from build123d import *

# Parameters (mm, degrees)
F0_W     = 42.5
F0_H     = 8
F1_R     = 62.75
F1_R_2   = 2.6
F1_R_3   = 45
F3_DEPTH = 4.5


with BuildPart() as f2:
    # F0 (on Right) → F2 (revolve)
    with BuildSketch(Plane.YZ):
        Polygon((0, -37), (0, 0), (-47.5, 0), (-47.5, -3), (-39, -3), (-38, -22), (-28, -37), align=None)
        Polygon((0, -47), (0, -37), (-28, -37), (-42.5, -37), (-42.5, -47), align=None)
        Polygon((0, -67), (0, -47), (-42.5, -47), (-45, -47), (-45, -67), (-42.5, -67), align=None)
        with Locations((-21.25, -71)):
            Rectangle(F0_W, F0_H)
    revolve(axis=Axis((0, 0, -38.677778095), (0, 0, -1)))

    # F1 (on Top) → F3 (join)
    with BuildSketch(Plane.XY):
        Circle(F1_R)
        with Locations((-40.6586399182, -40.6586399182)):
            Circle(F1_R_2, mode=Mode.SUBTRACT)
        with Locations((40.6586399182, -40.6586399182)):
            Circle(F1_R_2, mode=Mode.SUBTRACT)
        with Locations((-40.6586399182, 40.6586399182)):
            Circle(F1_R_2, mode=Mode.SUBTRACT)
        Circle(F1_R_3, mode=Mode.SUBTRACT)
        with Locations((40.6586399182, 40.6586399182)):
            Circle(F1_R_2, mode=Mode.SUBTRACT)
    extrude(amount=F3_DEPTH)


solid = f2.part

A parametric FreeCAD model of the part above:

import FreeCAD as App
import Part
import Sketcher

V = App.Vector


def add_polygon(sketch, points):
    """Adds a closed chain of lines whose ends are joined by coincident constraints."""
    first, n = sketch.GeometryCount, len(points)
    for a, b in zip(points, points[1:] + points[:1]):
        sketch.addGeometry(Part.LineSegment(App.Vector(*a, 0), App.Vector(*b, 0)), False)
    for i in range(n):
        sketch.addConstraint(Sketcher.Constraint("Coincident", first + i, 2, first + (i + 1) % n, 1))

doc = App.newDocument("Part")
body = doc.addObject("PartDesign::Body", "Body")

# Sketch on YZ plane
sketch1 = body.newObject("Sketcher::SketchObject", "Sketch")
sketch1.AttachmentSupport = (doc.getObject("YZ_Plane"), [""])
sketch1.MapMode = "FlatFace"
add_polygon(sketch1, [(0, 0), (-47.5, 0), (-47.5, -3), (-39, -3), (-38, -22), (-28, -37), (-42.5, -37), (-42.5, -47), (-45, -47), (-45, -67), (-42.5, -67), (-42.5, -75), (0, -75)])  # lines 0-12
sketch1.addConstraint([
    Sketcher.Constraint("Horizontal", 0),
    Sketcher.Constraint("Vertical", 1),
    Sketcher.Constraint("Horizontal", 2),
    Sketcher.Constraint("Horizontal", 5),
    Sketcher.Constraint("Vertical", 6),
    Sketcher.Constraint("Horizontal", 7),
    Sketcher.Constraint("Vertical", 8),
    Sketcher.Constraint("Horizontal", 9),
    Sketcher.Constraint("Vertical", 10),
    Sketcher.Constraint("Horizontal", 11),
    Sketcher.Constraint("Vertical", 12),
    Sketcher.Constraint("Coincident", 12, 2, -1, 1),
    Sketcher.Constraint("Vertical", 6, 2, 9, 2),
    Sketcher.Constraint("DistanceY", 1, 2, 1, 1, 3.0),
    Sketcher.Constraint("DistanceY", 6, 2, 6, 1, 10.0),
    Sketcher.Constraint("DistanceY", 8, 2, 8, 1, 20.0),
    Sketcher.Constraint("DistanceY", 10, 2, 10, 1, 8.0),
    Sketcher.Constraint("DistanceY", 12, 1, 12, 2, 75.0),
    Sketcher.Constraint("DistanceX", 0, 2, 0, 1, 47.5),
    Sketcher.Constraint("DistanceX", 2, 1, 2, 2, 8.5),
    Sketcher.Constraint("DistanceX", 5, 2, 5, 1, 14.5),
    Sketcher.Constraint("DistanceX", 7, 2, 7, 1, 2.5),
    Sketcher.Constraint("DistanceX", 11, 1, 11, 2, 42.5),
    Sketcher.Constraint("DistanceX", 3, 2, -1, 1, 38.0),
    Sketcher.Constraint("DistanceY", 3, 2, -1, 1, 22.0),
])
revolution = body.newObject("PartDesign::Revolution", "Revolution")
revolution.Profile = sketch1
revolution.ReferenceAxis = (sketch1, ["V_Axis"])
revolution.Angle = 360

# Sketch on XY plane
sketch2 = body.newObject("Sketcher::SketchObject", "Sketch001")
sketch2.AttachmentSupport = (doc.getObject("XY_Plane"), [""])
sketch2.MapMode = "FlatFace"
sketch2.addGeometry([
    Part.Circle(V(0, 0, 0), V(0, 0, 1), 62.75),  # 0
    Part.Circle(V(-40.65864, -40.65864, 0), V(0, 0, 1), 2.6),  # 1
    Part.Circle(V(40.65864, -40.65864, 0), V(0, 0, 1), 2.6),  # 2
    Part.Circle(V(-40.65864, 40.65864, 0), V(0, 0, 1), 2.6),  # 3
    Part.Circle(V(0, 0, 0), V(0, 0, 1), 45),  # 4
    Part.Circle(V(40.65864, 40.65864, 0), V(0, 0, 1), 2.6),  # 5
], False)
sketch2.addConstraint([
    Sketcher.Constraint("Coincident", 0, 3, -1, 1),
    Sketcher.Constraint("Coincident", 4, 3, -1, 1),
    Sketcher.Constraint("Equal", 1, 2),
    Sketcher.Constraint("Equal", 2, 3),
    Sketcher.Constraint("Equal", 3, 5),
    Sketcher.Constraint("Symmetric", 2, 3, 3, 3, -1, 1),
    Sketcher.Constraint("Symmetric", 1, 3, 5, 3, -1, 1),
    Sketcher.Constraint("Symmetric", 1, 3, 2, 3, -2),
    Sketcher.Constraint("Diameter", 4, 90.0),
    Sketcher.Constraint("Diameter", 0, 125.5),
    Sketcher.Constraint("Diameter", 1, 5.2),
    Sketcher.Constraint("DistanceX", 1, 3, -1, 1, 40.65864),
    Sketcher.Constraint("DistanceY", 1, 3, -1, 1, 40.65864),
])
pad1 = body.newObject("PartDesign::Pad", "Pad")
pad1.Profile = sketch2
pad1.Length = 4.5

doc.recompute()
